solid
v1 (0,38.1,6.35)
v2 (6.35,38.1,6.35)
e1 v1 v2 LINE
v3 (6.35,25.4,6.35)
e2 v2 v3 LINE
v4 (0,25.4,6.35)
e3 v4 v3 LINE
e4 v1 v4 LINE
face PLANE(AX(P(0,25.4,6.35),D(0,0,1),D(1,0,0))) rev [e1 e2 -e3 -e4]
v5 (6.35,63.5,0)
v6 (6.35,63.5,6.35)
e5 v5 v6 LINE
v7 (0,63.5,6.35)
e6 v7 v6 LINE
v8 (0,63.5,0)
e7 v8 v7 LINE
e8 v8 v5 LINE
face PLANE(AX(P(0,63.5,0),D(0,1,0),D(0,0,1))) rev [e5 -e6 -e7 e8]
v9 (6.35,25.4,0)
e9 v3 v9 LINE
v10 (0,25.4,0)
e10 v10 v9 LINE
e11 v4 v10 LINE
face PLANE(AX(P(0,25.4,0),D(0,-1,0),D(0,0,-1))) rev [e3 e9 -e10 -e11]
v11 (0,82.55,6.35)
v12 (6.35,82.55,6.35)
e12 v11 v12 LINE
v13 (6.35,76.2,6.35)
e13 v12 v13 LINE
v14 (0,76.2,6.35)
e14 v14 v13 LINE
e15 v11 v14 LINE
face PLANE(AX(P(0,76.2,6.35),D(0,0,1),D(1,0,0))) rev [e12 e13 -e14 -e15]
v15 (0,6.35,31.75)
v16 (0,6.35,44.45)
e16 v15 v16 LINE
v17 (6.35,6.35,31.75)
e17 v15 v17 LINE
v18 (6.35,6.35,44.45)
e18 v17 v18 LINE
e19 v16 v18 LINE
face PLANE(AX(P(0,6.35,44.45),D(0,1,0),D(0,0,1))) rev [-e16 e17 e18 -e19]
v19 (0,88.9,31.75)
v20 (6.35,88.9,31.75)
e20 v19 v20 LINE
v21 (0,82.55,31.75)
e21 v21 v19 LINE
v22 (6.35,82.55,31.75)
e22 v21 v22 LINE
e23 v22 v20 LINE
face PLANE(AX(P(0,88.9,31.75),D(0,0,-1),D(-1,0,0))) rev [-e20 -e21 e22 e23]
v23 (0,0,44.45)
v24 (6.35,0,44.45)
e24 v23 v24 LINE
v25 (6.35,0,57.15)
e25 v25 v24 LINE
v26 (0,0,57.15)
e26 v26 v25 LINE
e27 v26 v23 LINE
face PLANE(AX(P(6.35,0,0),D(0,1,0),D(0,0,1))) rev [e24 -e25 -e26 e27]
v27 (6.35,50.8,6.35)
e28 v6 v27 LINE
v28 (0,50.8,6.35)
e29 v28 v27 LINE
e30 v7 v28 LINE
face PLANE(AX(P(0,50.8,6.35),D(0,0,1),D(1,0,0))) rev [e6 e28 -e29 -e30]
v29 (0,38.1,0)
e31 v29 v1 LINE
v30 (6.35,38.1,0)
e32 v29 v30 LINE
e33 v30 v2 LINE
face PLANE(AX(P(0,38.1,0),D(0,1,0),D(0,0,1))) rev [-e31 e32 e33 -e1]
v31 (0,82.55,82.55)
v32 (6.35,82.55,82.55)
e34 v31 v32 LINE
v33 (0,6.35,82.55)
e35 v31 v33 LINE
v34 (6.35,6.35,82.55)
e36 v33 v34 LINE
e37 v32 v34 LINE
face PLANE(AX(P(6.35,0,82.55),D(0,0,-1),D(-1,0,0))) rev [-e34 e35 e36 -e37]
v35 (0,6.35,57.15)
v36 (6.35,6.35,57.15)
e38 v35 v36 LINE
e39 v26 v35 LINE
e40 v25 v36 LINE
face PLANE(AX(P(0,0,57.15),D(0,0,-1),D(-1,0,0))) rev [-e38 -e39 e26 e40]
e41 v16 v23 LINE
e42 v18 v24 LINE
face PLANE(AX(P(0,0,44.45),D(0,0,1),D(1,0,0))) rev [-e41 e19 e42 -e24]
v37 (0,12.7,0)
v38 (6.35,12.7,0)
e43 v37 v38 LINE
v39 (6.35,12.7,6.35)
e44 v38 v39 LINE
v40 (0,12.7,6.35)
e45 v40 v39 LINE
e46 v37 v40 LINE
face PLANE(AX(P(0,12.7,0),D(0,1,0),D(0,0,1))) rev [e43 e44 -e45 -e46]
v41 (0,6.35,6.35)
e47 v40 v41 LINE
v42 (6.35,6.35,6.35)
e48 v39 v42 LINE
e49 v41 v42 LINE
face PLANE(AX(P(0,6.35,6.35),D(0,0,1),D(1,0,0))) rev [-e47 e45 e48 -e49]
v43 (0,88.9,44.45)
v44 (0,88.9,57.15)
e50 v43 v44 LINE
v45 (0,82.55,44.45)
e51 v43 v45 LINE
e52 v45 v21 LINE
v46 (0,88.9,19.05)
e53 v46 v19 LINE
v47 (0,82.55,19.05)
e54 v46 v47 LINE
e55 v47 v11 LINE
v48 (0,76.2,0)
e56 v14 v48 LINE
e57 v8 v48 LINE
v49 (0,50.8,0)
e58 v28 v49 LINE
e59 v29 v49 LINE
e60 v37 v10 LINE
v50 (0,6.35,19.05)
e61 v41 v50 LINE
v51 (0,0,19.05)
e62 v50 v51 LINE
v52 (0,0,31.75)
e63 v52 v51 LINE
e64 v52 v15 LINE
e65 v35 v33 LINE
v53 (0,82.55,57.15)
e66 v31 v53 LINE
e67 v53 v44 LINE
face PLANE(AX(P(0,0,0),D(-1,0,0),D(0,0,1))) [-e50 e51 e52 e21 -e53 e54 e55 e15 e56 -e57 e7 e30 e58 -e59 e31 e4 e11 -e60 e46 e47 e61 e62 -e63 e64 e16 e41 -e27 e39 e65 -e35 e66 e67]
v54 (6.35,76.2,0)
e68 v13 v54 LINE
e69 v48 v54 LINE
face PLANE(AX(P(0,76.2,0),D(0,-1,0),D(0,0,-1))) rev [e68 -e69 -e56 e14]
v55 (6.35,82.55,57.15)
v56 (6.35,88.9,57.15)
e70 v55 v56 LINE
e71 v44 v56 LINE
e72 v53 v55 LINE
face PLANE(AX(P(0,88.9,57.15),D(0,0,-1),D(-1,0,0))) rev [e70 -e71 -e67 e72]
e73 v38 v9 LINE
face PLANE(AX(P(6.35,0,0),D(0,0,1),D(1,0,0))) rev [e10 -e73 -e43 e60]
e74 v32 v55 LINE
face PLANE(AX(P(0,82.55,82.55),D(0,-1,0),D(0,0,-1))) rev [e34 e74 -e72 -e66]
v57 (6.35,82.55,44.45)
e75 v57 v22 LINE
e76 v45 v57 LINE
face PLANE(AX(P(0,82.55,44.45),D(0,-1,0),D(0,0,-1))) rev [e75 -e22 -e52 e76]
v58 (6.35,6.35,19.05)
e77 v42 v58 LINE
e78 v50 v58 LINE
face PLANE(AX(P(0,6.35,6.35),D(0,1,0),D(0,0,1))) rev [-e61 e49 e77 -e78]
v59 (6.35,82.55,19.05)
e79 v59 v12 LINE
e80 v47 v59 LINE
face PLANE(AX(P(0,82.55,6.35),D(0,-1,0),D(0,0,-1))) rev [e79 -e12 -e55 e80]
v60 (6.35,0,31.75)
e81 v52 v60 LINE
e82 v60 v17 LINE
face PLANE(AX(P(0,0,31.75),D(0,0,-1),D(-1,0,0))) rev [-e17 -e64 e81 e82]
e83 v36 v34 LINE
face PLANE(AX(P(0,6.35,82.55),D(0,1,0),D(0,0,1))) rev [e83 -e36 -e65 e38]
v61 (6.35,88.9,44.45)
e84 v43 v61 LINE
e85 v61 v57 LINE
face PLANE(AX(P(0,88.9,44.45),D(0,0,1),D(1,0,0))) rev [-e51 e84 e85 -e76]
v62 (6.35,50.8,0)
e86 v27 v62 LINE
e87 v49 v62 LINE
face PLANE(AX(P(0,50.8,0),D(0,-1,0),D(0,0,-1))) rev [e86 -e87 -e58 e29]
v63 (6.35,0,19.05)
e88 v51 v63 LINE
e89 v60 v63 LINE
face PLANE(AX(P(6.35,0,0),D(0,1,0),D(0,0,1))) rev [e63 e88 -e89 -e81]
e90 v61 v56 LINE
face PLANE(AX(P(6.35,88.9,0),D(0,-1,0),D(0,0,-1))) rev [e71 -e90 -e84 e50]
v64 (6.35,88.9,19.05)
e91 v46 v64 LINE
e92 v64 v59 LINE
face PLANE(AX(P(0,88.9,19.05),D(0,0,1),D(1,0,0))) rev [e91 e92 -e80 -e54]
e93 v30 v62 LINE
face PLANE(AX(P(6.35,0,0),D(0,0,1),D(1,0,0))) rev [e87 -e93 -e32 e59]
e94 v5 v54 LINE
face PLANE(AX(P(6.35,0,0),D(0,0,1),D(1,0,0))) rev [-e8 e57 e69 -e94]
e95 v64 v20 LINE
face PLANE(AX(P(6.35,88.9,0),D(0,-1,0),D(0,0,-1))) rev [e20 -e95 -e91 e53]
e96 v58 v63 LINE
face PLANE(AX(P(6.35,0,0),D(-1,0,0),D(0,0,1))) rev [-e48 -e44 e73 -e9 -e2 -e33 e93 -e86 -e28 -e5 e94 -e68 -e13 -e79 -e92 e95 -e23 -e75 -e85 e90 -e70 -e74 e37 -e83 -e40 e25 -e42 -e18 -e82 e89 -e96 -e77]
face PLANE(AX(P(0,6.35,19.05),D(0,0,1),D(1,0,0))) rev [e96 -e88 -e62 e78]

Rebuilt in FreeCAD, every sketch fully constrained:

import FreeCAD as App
import Part
import Sketcher
Q = App.Units.Quantity


def add_polygon(sketch, points):
    """Adds a closed chain of lines whose ends are joined by coincident constraints."""
    first, n = sketch.GeometryCount, len(points)
    for a, b in zip(points, points[1:] + points[:1]):
        sketch.addGeometry(Part.LineSegment(App.Vector(*a, 0), App.Vector(*b, 0)), False)
    for i in range(n):
        sketch.addConstraint(Sketcher.Constraint("Coincident", first + i, 2, first + (i + 1) % n, 1))

doc = App.newDocument("Part")
params = doc.addObject("Spreadsheet::Sheet", "Params")
for row, (alias, value) in enumerate([
    ("sketch1_width", "3.5 in"),
    ("sketch1_height", "3.25 in"),
    ("pad1_length", "0.25 in"),
    ("sketch2_height", "1 in"),
    ("sketch2_width", "0.5 in"),
    ("pocket1_length", "0.25 in"),
], start=1):
    params.set(f"A{row}", alias)
    params.set(f"B{row}", "=" + value)
    params.setAlias(f"B{row}", alias)

body = doc.addObject("PartDesign::Body", "Body")

sketch1 = doc.addObject("Sketcher::SketchObject", "Sketch")
body.addObject(sketch1)
sketch1.AttachmentSupport = (doc.YZ_Plane, [""])
sketch1.MapMode = "FlatFace"
add_polygon(sketch1, [(0, 83), (0, 0), (89, 0), (89, 83)])
sketch1.addConstraint(Sketcher.Constraint("Vertical", 0))
sketch1.addConstraint(Sketcher.Constraint("Horizontal", 1))
sketch1.addConstraint(Sketcher.Constraint("Vertical", 2))
sketch1.addConstraint(Sketcher.Constraint("Horizontal", 3))
sketch1.addConstraint(Sketcher.Constraint("Coincident", 0, 2, -1, 1))
sketch1.addConstraint(Sketcher.Constraint("DistanceX", 1, 1, 1, 2, Q("3.5 in")))
sketch1.addConstraint(Sketcher.Constraint("DistanceY", 0, 2, 0, 1, Q("3.25 in")))
sketch1.setExpression("Constraints[9]", "Params.sketch1_width")
sketch1.setExpression("Constraints[10]", "Params.sketch1_height")
pad1 = doc.addObject("PartDesign::Pad", "Pad")
body.addObject(pad1)
pad1.Profile = sketch1
pad1.setExpression("Length", "Params.pad1_length")

sketch2 = doc.addObject("Sketcher::SketchObject", "Sketch001")
body.addObject(sketch2)
sketch2.AttachmentSupport = (doc.YZ_Plane, [""])
sketch2.MapMode = "FlatFace"
sketch2.AttachmentOffset = App.Placement(App.Vector(0, 0, 0.25 * 25.4), App.Rotation())
add_polygon(sketch2, [(51, 6), (51, 0), (64, 0), (64, 6)])
add_polygon(sketch2, [(25, 6), (25, 0), (38, 0), (38, 6)])
add_polygon(sketch2, [(0, 0), (13, 0), (13, 6), (6, 6), (6, 19), (0, 19)])
add_polygon(sketch2, [(76, 0), (89, 0), (89, 19), (83, 19), (83, 6), (76, 6)])
add_polygon(sketch2, [(0, 83), (0, 57), (6, 57), (6, 83)])
add_polygon(sketch2, [(0, 44), (0, 32), (6, 32), (6, 44)])
add_polygon(sketch2, [(83, 44), (83, 32), (89, 32), (89, 44)])
add_polygon(sketch2, [(83, 83), (83, 57), (89, 57), (89, 83)])
sketch2.addConstraint(Sketcher.Constraint("Vertical", 0))
sketch2.addConstraint(Sketcher.Constraint("Horizontal", 1))
sketch2.addConstraint(Sketcher.Constraint("Vertical", 2))
sketch2.addConstraint(Sketcher.Constraint("Horizontal", 3))
sketch2.addConstraint(Sketcher.Constraint("Vertical", 4))
sketch2.addConstraint(Sketcher.Constraint("Horizontal", 5))
sketch2.addConstraint(Sketcher.Constraint("Vertical", 6))
sketch2.addConstraint(Sketcher.Constraint("Horizontal", 7))
sketch2.addConstraint(Sketcher.Constraint("Horizontal", 8))
sketch2.addConstraint(Sketcher.Constraint("Vertical", 9))
sketch2.addConstraint(Sketcher.Constraint("Horizontal", 10))
sketch2.addConstraint(Sketcher.Constraint("Vertical", 11))
sketch2.addConstraint(Sketcher.Constraint("Horizontal", 12))
sketch2.addConstraint(Sketcher.Constraint("Vertical", 13))
sketch2.addConstraint(Sketcher.Constraint("Horizontal", 14))
sketch2.addConstraint(Sketcher.Constraint("Vertical", 15))
sketch2.addConstraint(Sketcher.Constraint("Horizontal", 16))
sketch2.addConstraint(Sketcher.Constraint("Vertical", 17))
sketch2.addConstraint(Sketcher.Constraint("Horizontal", 18))
sketch2.addConstraint(Sketcher.Constraint("Vertical", 19))
sketch2.addConstraint(Sketcher.Constraint("Vertical", 20))
sketch2.addConstraint(Sketcher.Constraint("Horizontal", 21))
sketch2.addConstraint(Sketcher.Constraint("Vertical", 22))
sketch2.addConstraint(Sketcher.Constraint("Horizontal", 23))
sketch2.addConstraint(Sketcher.Constraint("Vertical", 24))
sketch2.addConstraint(Sketcher.Constraint("Horizontal", 25))
sketch2.addConstraint(Sketcher.Constraint("Vertical", 26))
sketch2.addConstraint(Sketcher.Constraint("Horizontal", 27))
sketch2.addConstraint(Sketcher.Constraint("Vertical", 28))
sketch2.addConstraint(Sketcher.Constraint("Horizontal", 29))
sketch2.addConstraint(Sketcher.Constraint("Vertical", 30))
sketch2.addConstraint(Sketcher.Constraint("Horizontal", 31))
sketch2.addConstraint(Sketcher.Constraint("Vertical", 32))
sketch2.addConstraint(Sketcher.Constraint("Horizontal", 33))
sketch2.addConstraint(Sketcher.Constraint("Vertical", 34))
sketch2.addConstraint(Sketcher.Constraint("Horizontal", 35))
sketch2.addConstraint(Sketcher.Constraint("Coincident", 13, 2, -1, 1))
sketch2.addConstraint(Sketcher.Constraint("PointOnObject", 0, 2, -1))
sketch2.addConstraint(Sketcher.Constraint("PointOnObject", 4, 2, -1))
sketch2.addConstraint(Sketcher.Constraint("PointOnObject", 14, 2, -1))
sketch2.addConstraint(Sketcher.Constraint("PointOnObject", 20, 2, -2))
sketch2.addConstraint(Sketcher.Constraint("PointOnObject", 24, 2, -2))
sketch2.addConstraint(Sketcher.Constraint("Horizontal", 3, 2, 6, 2))
sketch2.addConstraint(Sketcher.Constraint("Horizontal", 7, 2, 9, 2))
sketch2.addConstraint(Sketcher.Constraint("Horizontal", 12, 2, 15, 2))
sketch2.addConstraint(Sketcher.Constraint("Horizontal", 10, 2, 17, 2))
sketch2.addConstraint(Sketcher.Constraint("Horizontal", 25, 2, 28, 2))
sketch2.addConstraint(Sketcher.Constraint("Horizontal", 27, 2, 30, 2))
sketch2.addConstraint(Sketcher.Constraint("Horizontal", 21, 2, 32, 2))
sketch2.addConstraint(Sketcher.Constraint("Horizontal", 23, 2, 34, 2))
sketch2.addConstraint(Sketcher.Constraint("Vertical", 11, 2, 21, 2))
sketch2.addConstraint(Sketcher.Constraint("Vertical", 22, 2, 25, 2))
sketch2.addConstraint(Sketcher.Constraint("Vertical", 17, 2, 28, 2))
sketch2.addConstraint(Sketcher.Constraint("Vertical", 15, 2, 29, 2))
sketch2.addConstraint(Sketcher.Constraint("Vertical", 31, 2, 32, 2))
sketch2.addConstraint(Sketcher.Constraint("Vertical", 30, 2, 33, 2))
sketch2.addConstraint(Sketcher.Constraint("Equal", 3, 5))
sketch2.addConstraint(Sketcher.Constraint("Equal", 7, 8))
sketch2.addConstraint(Sketcher.Constraint("Equal", 10, 12))
sketch2.addConstraint(Sketcher.Constraint("Equal", 8, 14))
sketch2.addConstraint(Sketcher.Constraint("Equal", 12, 16))
sketch2.addConstraint(Sketcher.Constraint("Equal", 35, 0))
sketch2.addConstraint(Sketcher.Constraint("Equal", 14, 11))
sketch2.addConstraint(Sketcher.Constraint("Equal", 17, 24))
sketch2.addConstraint(Sketcher.Constraint("DistanceY", 20, 2, 20, 1, Q("1 in")))
sketch2.addConstraint(Sketcher.Constraint("DistanceX", 1, 1, 1, 2, Q("0.5 in")))
sketch2.addConstraint(Sketcher.Constraint("DistanceX", -1, 1, 0, 2, Q("2 in")))
sketch2.addConstraint(Sketcher.Constraint("DistanceX", -1, 1, 4, 2, Q("1 in")))
sketch2.addConstraint(Sketcher.Constraint("DistanceX", -1, 1, 18, 2, Q("3 in")))
sketch2.addConstraint(Sketcher.Constraint("DistanceY", 10, 2, 20, 2, Q("2 in")))
sketch2.addConstraint(Sketcher.Constraint("DistanceY", 24, 2, 20, 2, Q("1 in")))
sketch2.setExpression("Constraints[100]", "Params.sketch2_height")
sketch2.setExpression("Constraints[101]", "Params.sketch2_width")
pocket1 = doc.addObject("PartDesign::Pocket", "Pocket")
body.addObject(pocket1)
pocket1.Profile = sketch2
pocket1.setExpression("Length", "Params.pocket1_length")

doc.recompute()
